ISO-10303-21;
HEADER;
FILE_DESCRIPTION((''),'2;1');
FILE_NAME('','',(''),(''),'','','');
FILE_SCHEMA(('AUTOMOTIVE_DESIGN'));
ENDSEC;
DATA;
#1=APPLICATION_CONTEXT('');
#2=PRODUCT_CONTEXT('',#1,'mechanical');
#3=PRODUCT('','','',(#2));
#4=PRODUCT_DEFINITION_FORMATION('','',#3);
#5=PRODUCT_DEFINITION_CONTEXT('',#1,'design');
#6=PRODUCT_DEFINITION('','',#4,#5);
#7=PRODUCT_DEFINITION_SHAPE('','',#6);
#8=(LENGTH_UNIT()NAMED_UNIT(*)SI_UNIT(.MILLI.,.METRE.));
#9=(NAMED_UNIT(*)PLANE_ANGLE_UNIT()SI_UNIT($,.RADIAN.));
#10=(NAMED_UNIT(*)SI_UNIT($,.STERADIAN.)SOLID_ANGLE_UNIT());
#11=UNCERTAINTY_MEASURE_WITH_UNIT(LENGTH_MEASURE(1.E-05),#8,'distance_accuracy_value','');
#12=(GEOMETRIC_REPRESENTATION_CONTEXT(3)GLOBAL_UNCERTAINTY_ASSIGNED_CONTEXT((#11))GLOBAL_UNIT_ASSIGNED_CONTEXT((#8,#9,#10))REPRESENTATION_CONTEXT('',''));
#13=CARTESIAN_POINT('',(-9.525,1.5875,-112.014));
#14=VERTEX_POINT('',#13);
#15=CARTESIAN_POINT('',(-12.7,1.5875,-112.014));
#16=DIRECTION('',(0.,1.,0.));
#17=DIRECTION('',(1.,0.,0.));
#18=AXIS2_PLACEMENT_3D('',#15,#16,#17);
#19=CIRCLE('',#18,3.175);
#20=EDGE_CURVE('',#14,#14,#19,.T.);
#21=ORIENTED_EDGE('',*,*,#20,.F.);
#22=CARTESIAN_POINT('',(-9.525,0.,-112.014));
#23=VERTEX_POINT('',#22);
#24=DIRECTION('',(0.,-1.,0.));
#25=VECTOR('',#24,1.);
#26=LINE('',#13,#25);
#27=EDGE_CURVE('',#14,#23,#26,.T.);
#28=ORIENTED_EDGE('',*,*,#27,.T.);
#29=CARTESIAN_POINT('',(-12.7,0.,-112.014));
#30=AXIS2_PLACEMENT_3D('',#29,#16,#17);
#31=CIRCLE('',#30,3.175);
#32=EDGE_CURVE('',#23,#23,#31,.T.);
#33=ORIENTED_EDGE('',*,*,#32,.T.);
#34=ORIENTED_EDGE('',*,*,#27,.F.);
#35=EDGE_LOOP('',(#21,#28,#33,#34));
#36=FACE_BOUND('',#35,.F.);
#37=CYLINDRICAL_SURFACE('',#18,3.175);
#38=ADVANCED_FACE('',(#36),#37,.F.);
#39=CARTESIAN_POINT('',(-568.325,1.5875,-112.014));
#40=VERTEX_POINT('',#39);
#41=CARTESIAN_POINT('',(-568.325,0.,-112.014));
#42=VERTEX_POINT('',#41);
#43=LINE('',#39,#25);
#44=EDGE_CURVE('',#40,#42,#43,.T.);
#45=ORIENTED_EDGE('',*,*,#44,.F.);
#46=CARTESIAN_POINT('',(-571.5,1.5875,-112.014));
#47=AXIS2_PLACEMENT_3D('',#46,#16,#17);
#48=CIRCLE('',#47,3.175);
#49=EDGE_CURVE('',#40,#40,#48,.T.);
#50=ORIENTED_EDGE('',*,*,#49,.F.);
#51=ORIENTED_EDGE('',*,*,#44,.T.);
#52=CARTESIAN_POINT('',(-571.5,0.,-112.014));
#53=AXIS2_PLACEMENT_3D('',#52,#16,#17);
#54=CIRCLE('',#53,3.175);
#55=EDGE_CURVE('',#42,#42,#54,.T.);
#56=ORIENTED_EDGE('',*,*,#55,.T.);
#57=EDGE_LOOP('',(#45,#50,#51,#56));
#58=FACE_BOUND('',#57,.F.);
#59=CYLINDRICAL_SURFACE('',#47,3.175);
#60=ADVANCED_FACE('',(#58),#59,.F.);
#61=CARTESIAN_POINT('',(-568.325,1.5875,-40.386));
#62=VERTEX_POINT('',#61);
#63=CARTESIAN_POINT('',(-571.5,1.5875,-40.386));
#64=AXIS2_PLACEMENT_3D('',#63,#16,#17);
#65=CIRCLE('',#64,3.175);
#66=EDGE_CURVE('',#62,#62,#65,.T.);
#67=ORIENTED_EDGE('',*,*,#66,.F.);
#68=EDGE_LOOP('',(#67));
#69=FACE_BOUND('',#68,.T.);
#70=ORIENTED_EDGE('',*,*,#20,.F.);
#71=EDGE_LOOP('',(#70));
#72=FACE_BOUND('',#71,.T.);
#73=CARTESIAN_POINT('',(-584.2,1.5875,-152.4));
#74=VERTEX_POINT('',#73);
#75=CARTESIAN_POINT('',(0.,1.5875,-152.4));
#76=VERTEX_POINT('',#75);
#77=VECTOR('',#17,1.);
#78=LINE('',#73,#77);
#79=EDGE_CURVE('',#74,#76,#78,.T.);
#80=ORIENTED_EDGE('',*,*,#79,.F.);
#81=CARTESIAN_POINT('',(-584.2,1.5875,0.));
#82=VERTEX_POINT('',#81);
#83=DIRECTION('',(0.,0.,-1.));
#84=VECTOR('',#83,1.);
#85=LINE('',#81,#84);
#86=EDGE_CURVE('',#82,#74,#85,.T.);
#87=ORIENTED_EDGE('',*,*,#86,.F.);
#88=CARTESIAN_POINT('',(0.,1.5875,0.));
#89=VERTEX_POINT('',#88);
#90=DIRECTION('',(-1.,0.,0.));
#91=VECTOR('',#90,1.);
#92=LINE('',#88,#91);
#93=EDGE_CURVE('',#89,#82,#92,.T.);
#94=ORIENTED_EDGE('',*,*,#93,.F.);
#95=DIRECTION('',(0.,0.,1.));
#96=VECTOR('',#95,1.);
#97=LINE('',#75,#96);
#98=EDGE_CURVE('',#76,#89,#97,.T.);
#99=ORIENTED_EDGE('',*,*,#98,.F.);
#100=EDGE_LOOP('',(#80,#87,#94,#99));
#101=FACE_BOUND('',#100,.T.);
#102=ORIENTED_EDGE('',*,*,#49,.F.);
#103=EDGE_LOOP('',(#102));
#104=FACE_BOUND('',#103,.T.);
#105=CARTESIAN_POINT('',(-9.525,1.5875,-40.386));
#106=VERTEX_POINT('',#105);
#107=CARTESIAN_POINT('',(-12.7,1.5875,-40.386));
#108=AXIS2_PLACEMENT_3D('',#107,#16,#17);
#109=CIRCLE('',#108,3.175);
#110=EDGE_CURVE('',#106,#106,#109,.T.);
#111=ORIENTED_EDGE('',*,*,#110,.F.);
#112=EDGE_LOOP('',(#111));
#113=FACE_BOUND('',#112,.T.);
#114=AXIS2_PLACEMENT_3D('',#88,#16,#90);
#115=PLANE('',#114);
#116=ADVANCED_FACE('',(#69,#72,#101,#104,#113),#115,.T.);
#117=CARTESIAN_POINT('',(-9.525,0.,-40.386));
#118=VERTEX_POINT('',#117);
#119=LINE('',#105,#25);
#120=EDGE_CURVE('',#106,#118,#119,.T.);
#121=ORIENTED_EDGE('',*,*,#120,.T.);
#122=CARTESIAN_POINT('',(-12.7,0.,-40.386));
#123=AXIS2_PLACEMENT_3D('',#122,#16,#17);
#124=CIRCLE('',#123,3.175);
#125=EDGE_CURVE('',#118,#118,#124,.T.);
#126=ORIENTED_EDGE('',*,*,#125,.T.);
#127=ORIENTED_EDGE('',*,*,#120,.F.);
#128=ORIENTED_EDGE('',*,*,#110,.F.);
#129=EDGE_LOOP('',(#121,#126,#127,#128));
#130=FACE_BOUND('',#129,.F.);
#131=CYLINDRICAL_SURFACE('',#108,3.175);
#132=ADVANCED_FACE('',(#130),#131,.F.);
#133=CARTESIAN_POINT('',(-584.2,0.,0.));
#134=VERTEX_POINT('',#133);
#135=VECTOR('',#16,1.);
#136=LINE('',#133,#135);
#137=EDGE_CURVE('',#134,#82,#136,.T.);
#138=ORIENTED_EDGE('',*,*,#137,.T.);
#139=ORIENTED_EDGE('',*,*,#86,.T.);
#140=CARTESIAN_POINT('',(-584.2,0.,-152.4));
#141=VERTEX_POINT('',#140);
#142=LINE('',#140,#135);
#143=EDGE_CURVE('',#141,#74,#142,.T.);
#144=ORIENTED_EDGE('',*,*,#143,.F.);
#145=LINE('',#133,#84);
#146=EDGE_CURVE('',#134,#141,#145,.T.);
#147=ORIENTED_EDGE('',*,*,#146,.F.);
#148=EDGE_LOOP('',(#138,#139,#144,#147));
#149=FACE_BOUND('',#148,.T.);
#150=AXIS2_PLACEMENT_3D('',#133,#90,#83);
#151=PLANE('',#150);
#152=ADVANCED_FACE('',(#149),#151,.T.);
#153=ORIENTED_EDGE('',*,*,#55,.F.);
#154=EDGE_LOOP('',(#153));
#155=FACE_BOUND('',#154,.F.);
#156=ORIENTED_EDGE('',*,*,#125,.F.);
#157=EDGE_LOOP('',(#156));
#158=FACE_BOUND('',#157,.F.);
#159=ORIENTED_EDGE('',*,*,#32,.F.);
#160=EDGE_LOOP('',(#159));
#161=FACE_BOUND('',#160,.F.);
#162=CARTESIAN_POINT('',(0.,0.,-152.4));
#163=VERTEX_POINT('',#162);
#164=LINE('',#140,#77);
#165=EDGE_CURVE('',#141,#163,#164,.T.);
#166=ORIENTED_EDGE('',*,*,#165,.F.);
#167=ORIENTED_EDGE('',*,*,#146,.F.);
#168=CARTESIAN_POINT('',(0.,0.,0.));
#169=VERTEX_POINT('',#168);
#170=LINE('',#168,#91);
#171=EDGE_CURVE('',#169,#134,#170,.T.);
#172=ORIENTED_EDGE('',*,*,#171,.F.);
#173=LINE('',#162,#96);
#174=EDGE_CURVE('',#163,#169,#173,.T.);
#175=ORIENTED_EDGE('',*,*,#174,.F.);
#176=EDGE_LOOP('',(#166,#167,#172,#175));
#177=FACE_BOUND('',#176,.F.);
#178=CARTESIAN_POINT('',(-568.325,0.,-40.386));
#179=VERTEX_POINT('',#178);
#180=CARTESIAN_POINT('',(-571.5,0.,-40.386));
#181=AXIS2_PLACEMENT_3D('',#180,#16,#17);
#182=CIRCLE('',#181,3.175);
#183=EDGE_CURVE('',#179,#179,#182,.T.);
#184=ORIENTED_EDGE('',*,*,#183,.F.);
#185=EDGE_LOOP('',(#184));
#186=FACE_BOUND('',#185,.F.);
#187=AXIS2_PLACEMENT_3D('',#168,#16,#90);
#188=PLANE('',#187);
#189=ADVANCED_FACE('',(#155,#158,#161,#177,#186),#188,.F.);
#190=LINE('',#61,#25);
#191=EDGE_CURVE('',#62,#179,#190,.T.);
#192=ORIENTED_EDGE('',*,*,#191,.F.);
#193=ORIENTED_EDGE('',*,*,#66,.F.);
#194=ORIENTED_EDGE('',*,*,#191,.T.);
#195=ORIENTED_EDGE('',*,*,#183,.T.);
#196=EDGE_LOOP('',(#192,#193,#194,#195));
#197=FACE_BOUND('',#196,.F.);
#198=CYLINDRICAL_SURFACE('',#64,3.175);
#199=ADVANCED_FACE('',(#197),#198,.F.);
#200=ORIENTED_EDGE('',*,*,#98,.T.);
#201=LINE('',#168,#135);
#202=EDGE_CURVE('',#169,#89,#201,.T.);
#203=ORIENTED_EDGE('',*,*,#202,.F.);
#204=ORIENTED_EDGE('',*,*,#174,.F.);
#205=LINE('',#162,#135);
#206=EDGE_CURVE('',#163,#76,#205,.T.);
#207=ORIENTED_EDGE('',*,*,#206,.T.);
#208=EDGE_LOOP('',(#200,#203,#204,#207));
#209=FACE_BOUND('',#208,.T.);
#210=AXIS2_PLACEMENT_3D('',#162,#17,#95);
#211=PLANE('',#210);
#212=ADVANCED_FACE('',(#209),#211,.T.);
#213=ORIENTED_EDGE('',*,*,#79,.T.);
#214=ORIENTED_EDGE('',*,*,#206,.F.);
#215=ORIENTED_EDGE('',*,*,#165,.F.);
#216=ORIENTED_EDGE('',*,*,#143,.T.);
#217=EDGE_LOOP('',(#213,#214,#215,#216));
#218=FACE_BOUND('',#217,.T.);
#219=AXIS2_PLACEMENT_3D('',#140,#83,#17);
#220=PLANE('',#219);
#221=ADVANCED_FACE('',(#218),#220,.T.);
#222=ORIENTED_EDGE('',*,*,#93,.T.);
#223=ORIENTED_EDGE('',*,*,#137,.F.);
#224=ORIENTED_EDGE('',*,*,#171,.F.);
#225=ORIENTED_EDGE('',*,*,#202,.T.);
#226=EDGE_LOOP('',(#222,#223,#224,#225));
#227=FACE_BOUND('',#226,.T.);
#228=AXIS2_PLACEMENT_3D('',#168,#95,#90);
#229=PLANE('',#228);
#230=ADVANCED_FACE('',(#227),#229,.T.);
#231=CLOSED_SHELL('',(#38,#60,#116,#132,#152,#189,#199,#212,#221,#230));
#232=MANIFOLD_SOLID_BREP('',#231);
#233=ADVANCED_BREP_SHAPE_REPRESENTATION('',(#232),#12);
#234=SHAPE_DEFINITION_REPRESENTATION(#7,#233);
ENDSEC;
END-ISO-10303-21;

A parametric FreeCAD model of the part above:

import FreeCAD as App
import Part
import Sketcher
Q = App.Units.Quantity

doc = App.newDocument("Part")
body = doc.addObject("PartDesign::Body", "Body")

# Sketch on XZ plane
sketch1 = body.newObject("Sketcher::SketchObject", "Sketch")
sketch1.AttachmentSupport = (doc.getObject("XZ_Plane"), [""])
sketch1.MapMode = "FlatFace"
sketch1.addGeometry(Part.LineSegment(App.Vector(-584.2, 0, 0), App.Vector(0, 0, 0)), False)
sketch1.addGeometry(Part.LineSegment(App.Vector(0, 0, 0), App.Vector(0, -152.4, 0)), False)
sketch1.addGeometry(Part.LineSegment(App.Vector(0, -152.4, 0), App.Vector(-584.2, -152.4, 0)), False)
sketch1.addGeometry(Part.LineSegment(App.Vector(-584.2, -152.4, 0), App.Vector(-584.2, 0, 0)), False)
sketch1.addConstraint(Sketcher.Constraint("Coincident", 0, 2, 1, 1))
sketch1.addConstraint(Sketcher.Constraint("Coincident", 1, 2, 2, 1))
sketch1.addConstraint(Sketcher.Constraint("Coincident", 2, 2, 3, 1))
sketch1.addConstraint(Sketcher.Constraint("Coincident", 3, 2, 0, 1))
sketch1.addConstraint(Sketcher.Constraint("Horizontal", 0))
sketch1.addConstraint(Sketcher.Constraint("Vertical", 1))
sketch1.addConstraint(Sketcher.Constraint("Horizontal", 2))
sketch1.addConstraint(Sketcher.Constraint("Vertical", 3))
sketch1.addConstraint(Sketcher.Constraint("Coincident", 0, 2, -1, 1))
sketch1.addConstraint(Sketcher.Constraint("DistanceX", 0, 1, 0, 2, Q("23 in")))
sketch1.addConstraint(Sketcher.Constraint("DistanceY", 1, 2, 1, 1, Q("6 in")))
pad1 = body.newObject("PartDesign::Pad", "Pad")
pad1.Profile = sketch1
pad1.Length = Q("0.0625 in")
pad1.Reversed = True

# Sketch on XZ plane
sketch2 = body.newObject("Sketcher::SketchObject", "Sketch001")
sketch2.AttachmentSupport = (doc.getObject("XZ_Plane"), [""])
sketch2.MapMode = "FlatFace"
sketch2.AttachmentOffset = App.Placement(App.Vector(0, 0, -0.0625 * 25.4), App.Rotation())
sketch2.addGeometry(Part.Circle(App.Vector(-12.7, -40.386, 0), App.Vector(0, 0, 1), 3.175), False)
sketch2.addGeometry(Part.Circle(App.Vector(-571.5, -40.386, 0), App.Vector(0, 0, 1), 3.175), False)
sketch2.addGeometry(Part.Circle(App.Vector(-12.7, -112.014, 0), App.Vector(0, 0, 1), 3.175), False)
sketch2.addGeometry(Part.Circle(App.Vector(-571.5, -112.014, 0), App.Vector(0, 0, 1), 3.175), False)
sketch2.addConstraint(Sketcher.Constraint("Equal", 0, 1))
sketch2.addConstraint(Sketcher.Constraint("Equal", 1, 2))
sketch2.addConstraint(Sketcher.Constraint("Equal", 2, 3))
sketch2.addConstraint(Sketcher.Constraint("Horizontal", 0, 3, 1, 3))
sketch2.addConstraint(Sketcher.Constraint("Horizontal", 2, 3, 3, 3))
sketch2.addConstraint(Sketcher.Constraint("Vertical", 0, 3, 2, 3))
sketch2.addConstraint(Sketcher.Constraint("Vertical", 1, 3, 3, 3))
sketch2.addConstraint(Sketcher.Constraint("Diameter", 0, Q("0.25 in")))
sketch2.addConstraint(Sketcher.Constraint("DistanceX", 0, 3, -1, 1, Q("0.5 in")))
sketch2.addConstraint(Sketcher.Constraint("DistanceY", 0, 3, -1, 1, Q("1.59 in")))
sketch2.addConstraint(Sketcher.Constraint("DistanceX", 1, 3, 0, 3, Q("22 in")))
sketch2.addConstraint(Sketcher.Constraint("DistanceY", 2, 3, -1, 1, Q("4.41 in")))
pocket1 = body.newObject("PartDesign::Pocket", "Pocket")
pocket1.Profile = sketch2
pocket1.Length = Q("0.0625 in")
pocket1.Reversed = True

doc.recompute()
